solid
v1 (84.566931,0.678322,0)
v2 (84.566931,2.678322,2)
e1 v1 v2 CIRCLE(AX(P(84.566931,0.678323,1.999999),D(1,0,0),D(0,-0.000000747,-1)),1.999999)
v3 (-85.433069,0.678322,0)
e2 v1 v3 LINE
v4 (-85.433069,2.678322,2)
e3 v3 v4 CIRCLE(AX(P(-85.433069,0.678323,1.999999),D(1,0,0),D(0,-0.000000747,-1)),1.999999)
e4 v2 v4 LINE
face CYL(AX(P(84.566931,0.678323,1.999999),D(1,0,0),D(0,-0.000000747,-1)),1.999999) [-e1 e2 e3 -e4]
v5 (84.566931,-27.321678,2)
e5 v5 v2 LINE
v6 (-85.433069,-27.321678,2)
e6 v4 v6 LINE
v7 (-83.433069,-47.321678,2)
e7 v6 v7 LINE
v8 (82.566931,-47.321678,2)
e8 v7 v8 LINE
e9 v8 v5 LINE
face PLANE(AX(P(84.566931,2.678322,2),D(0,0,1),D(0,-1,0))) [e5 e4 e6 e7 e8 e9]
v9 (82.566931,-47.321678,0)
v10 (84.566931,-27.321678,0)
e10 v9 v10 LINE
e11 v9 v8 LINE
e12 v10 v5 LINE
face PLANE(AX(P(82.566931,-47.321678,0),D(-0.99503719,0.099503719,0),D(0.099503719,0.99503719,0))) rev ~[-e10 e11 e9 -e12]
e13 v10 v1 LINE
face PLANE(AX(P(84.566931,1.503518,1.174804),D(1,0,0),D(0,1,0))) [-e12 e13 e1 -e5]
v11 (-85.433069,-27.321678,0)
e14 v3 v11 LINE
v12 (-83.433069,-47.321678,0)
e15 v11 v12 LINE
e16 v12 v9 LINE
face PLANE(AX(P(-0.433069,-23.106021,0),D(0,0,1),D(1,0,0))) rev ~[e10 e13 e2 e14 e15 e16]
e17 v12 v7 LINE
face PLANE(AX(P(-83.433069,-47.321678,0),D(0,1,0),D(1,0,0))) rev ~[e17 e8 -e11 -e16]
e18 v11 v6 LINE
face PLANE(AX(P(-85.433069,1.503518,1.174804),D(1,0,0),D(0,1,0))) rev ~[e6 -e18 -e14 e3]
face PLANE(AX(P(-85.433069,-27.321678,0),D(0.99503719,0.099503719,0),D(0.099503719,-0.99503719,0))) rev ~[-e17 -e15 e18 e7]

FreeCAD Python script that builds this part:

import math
import FreeCAD as App
import Part
import Sketcher

V = App.Vector
Q = App.Units.Quantity


def add_polygon(sketch, points):
    """Adds a closed chain of lines whose ends are joined by coincident constraints."""
    first, n = sketch.GeometryCount, len(points)
    for a, b in zip(points, points[1:] + points[:1]):
        sketch.addGeometry(Part.LineSegment(App.Vector(*a, 0), App.Vector(*b, 0)), False)
    for i in range(n):
        sketch.addConstraint(Sketcher.Constraint("Coincident", first + i, 2, first + (i + 1) % n, 1))

doc = App.newDocument("Part")
body = doc.addObject("PartDesign::Body", "Body")

sketch1 = body.newObject("Sketcher::SketchObject", "Sketch")
sketch1.AttachmentSupport = (doc.getObject("XY_Plane"), [""])
sketch1.MapMode = "FlatFace"
add_polygon(sketch1, [(84.566931, 0.678322), (-85.433069, 0.678322), (-85.433069, -27.321678), (-83.433069, -47.321678), (82.566931, -47.321678), (84.566931, -27.321678)])
sketch1.addConstraint(Sketcher.Constraint("Horizontal", 0))
sketch1.addConstraint(Sketcher.Constraint("Vertical", 1))
sketch1.addConstraint(Sketcher.Constraint("Horizontal", 3))
sketch1.addConstraint(Sketcher.Constraint("Vertical", 5))
sketch1.addConstraint(Sketcher.Constraint("Horizontal", 1, 2, 4, 2))
sketch1.addConstraint(Sketcher.Constraint("Equal", 2, 4))
sketch1.addConstraint(Sketcher.Constraint("DistanceX", 0, 2, 0, 1, Q("170 mm")))
sketch1.addConstraint(Sketcher.Constraint("DistanceX", 3, 1, 3, 2, Q("166 mm")))
sketch1.addConstraint(Sketcher.Constraint("DistanceY", 1, 2, 1, 1, Q("28 mm")))
sketch1.addConstraint(Sketcher.Constraint("DistanceY", 2, 2, 1, 2, Q("20 mm")))
sketch1.addConstraint(Sketcher.Constraint("DistanceX", 0, 2, -1, 1, Q("85.433069 mm")))
sketch1.addConstraint(Sketcher.Constraint("DistanceY", -1, 1, 0, 2, Q("0.678322 mm")))
pad1 = body.newObject("PartDesign::Pad", "Pad")
pad1.Profile = sketch1
pad1.Length = 2

sketch2 = body.newObject("Sketcher::SketchObject", "Sketch001")
sketch2.AttachmentSupport = (doc.getObject("YZ_Plane"), [""])
sketch2.MapMode = "FlatFace"
sketch2.AttachmentOffset = App.Placement(V(0, 0, 84.566931), App.Rotation())
sketch2.addGeometry(Part.LineSegment(V(0.678322, 2, 0), V(0.678322, 0, 0)), False)
sketch2.addGeometry(Part.ArcOfCircle(Part.Circle(V(0.678323, 1.999999, 0), V(0, 0, 1), 1.999999), math.radians(-90.000043), math.radians(0.000043)), False)
sketch2.addGeometry(Part.LineSegment(V(2.678322, 2, 0), V(0.678322, 2, 0)), False)
sketch2.addConstraint(Sketcher.Constraint("Coincident", 0, 2, 1, 1))
sketch2.addConstraint(Sketcher.Constraint("Coincident", 1, 2, 2, 1))
sketch2.addConstraint(Sketcher.Constraint("Coincident", 2, 2, 0, 1))
sketch2.addConstraint(Sketcher.Constraint("Vertical", 0))
sketch2.addConstraint(Sketcher.Constraint("Horizontal", 2))
sketch2.addConstraint(Sketcher.Constraint("Coincident", 2, 2, 1, 3))
sketch2.addConstraint(Sketcher.Constraint("PointOnObject", 0, 2, -1))
sketch2.addConstraint(Sketcher.Constraint("Radius", 1, Q("1.999999 mm")))
sketch2.addConstraint(Sketcher.Constraint("DistanceX", -1, 1, 0, 2, Q("0.678322 mm")))
pad2 = body.newObject("PartDesign::Pad", "Pad001")
pad2.Profile = sketch2
pad2.Length = 170
pad2.Reversed = True

doc.recompute()
